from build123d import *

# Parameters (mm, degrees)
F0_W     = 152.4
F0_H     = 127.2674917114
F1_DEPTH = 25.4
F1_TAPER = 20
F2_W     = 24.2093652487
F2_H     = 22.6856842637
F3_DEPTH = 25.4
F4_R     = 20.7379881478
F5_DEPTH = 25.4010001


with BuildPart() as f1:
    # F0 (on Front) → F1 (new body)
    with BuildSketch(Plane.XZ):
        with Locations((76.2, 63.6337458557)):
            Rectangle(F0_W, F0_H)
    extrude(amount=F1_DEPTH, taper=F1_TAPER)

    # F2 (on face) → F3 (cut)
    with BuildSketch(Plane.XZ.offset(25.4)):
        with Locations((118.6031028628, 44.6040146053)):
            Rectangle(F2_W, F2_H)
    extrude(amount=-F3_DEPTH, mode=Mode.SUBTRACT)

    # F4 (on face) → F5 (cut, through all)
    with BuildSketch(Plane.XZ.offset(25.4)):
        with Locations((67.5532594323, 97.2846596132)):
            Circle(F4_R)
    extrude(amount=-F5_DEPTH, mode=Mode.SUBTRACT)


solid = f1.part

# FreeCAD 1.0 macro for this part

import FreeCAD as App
import Part
import Sketcher

V = App.Vector
Q = App.Units.Quantity


def add_polygon(sketch, points):
    """Adds a closed chain of lines whose ends are joined by coincident constraints."""
    first, n = sketch.GeometryCount, len(points)
    for a, b in zip(points, points[1:] + points[:1]):
        sketch.addGeometry(Part.LineSegment(App.Vector(*a, 0), App.Vector(*b, 0)), False)
    for i in range(n):
        sketch.addConstraint(Sketcher.Constraint("Coincident", first + i, 2, first + (i + 1) % n, 1))

doc = App.newDocument("Part")
body = doc.addObject("PartDesign::Body", "Body")

sketch1 = body.newObject("Sketcher::SketchObject", "Sketch")
sketch1.AttachmentSupport = (doc.getObject("XZ_Plane"), [""])
sketch1.MapMode = "FlatFace"
add_polygon(sketch1, [(0, 127), (0, 0), (152, 0), (152, 127)])
sketch1.addConstraint(Sketcher.Constraint("Vertical", 0))
sketch1.addConstraint(Sketcher.Constraint("Horizontal", 1))
sketch1.addConstraint(Sketcher.Constraint("Vertical", 2))
sketch1.addConstraint(Sketcher.Constraint("Horizontal", 3))
sketch1.addConstraint(Sketcher.Constraint("Coincident", 0, 2, -1, 1))
sketch1.addConstraint(Sketcher.Constraint("DistanceX", 1, 1, 1, 2, Q("6 in")))
sketch1.addConstraint(Sketcher.Constraint("DistanceY", 0, 2, 0, 1, 127.267492))
pad1 = body.newObject("PartDesign::Pad", "Pad")
pad1.Profile = sketch1
pad1.Length = Q("1 in")
pad1.TaperAngle = -20

sketch2 = body.newObject("Sketcher::SketchObject", "Sketch001")
sketch2.AttachmentSupport = (doc.getObject("XZ_Plane"), [""])
sketch2.MapMode = "FlatFace"
sketch2.AttachmentOffset = App.Placement(V(0, 0, 1 * 25.4), App.Rotation())
add_polygon(sketch2, [(106, 56), (106, 33), (131, 33), (131, 56)])
sketch2.addConstraint(Sketcher.Constraint("Vertical", 0))
sketch2.addConstraint(Sketcher.Constraint("Horizontal", 1))
sketch2.addConstraint(Sketcher.Constraint("Vertical", 2))
sketch2.addConstraint(Sketcher.Constraint("Horizontal", 3))
sketch2.addConstraint(Sketcher.Constraint("DistanceX", 1, 1, 1, 2, 24.209365))
sketch2.addConstraint(Sketcher.Constraint("DistanceY", 0, 2, 0, 1, 22.685684))
sketch2.addConstraint(Sketcher.Constraint("DistanceX", -1, 1, 0, 2, 106.49842))
sketch2.addConstraint(Sketcher.Constraint("DistanceY", -1, 1, 0, 2, 33.261172))
pocket1 = body.newObject("PartDesign::Pocket", "Pocket")
pocket1.Profile = sketch2
pocket1.Length = Q("1 in")

sketch3 = body.newObject("Sketcher::SketchObject", "Sketch002")
sketch3.AttachmentSupport = (doc.getObject("XZ_Plane"), [""])
sketch3.MapMode = "FlatFace"
sketch3.AttachmentOffset = App.Placement(V(0, 0, 1 * 25.4), App.Rotation())
sketch3.addGeometry(Part.Circle(V(68, 97, 0), V(0, 0, 1), 21), False)
sketch3.addConstraint(Sketcher.Constraint("Diameter", 0, 41.475976))
sketch3.addConstraint(Sketcher.Constraint("DistanceX", -1, 1, 0, 3, 67.553259))
sketch3.addConstraint(Sketcher.Constraint("DistanceY", -1, 1, 0, 3, 97.28466))
pocket2 = body.newObject("PartDesign::Pocket", "Pocket001")
pocket2.Profile = sketch3
pocket2.Type = "ThroughAll"

doc.recompute()
